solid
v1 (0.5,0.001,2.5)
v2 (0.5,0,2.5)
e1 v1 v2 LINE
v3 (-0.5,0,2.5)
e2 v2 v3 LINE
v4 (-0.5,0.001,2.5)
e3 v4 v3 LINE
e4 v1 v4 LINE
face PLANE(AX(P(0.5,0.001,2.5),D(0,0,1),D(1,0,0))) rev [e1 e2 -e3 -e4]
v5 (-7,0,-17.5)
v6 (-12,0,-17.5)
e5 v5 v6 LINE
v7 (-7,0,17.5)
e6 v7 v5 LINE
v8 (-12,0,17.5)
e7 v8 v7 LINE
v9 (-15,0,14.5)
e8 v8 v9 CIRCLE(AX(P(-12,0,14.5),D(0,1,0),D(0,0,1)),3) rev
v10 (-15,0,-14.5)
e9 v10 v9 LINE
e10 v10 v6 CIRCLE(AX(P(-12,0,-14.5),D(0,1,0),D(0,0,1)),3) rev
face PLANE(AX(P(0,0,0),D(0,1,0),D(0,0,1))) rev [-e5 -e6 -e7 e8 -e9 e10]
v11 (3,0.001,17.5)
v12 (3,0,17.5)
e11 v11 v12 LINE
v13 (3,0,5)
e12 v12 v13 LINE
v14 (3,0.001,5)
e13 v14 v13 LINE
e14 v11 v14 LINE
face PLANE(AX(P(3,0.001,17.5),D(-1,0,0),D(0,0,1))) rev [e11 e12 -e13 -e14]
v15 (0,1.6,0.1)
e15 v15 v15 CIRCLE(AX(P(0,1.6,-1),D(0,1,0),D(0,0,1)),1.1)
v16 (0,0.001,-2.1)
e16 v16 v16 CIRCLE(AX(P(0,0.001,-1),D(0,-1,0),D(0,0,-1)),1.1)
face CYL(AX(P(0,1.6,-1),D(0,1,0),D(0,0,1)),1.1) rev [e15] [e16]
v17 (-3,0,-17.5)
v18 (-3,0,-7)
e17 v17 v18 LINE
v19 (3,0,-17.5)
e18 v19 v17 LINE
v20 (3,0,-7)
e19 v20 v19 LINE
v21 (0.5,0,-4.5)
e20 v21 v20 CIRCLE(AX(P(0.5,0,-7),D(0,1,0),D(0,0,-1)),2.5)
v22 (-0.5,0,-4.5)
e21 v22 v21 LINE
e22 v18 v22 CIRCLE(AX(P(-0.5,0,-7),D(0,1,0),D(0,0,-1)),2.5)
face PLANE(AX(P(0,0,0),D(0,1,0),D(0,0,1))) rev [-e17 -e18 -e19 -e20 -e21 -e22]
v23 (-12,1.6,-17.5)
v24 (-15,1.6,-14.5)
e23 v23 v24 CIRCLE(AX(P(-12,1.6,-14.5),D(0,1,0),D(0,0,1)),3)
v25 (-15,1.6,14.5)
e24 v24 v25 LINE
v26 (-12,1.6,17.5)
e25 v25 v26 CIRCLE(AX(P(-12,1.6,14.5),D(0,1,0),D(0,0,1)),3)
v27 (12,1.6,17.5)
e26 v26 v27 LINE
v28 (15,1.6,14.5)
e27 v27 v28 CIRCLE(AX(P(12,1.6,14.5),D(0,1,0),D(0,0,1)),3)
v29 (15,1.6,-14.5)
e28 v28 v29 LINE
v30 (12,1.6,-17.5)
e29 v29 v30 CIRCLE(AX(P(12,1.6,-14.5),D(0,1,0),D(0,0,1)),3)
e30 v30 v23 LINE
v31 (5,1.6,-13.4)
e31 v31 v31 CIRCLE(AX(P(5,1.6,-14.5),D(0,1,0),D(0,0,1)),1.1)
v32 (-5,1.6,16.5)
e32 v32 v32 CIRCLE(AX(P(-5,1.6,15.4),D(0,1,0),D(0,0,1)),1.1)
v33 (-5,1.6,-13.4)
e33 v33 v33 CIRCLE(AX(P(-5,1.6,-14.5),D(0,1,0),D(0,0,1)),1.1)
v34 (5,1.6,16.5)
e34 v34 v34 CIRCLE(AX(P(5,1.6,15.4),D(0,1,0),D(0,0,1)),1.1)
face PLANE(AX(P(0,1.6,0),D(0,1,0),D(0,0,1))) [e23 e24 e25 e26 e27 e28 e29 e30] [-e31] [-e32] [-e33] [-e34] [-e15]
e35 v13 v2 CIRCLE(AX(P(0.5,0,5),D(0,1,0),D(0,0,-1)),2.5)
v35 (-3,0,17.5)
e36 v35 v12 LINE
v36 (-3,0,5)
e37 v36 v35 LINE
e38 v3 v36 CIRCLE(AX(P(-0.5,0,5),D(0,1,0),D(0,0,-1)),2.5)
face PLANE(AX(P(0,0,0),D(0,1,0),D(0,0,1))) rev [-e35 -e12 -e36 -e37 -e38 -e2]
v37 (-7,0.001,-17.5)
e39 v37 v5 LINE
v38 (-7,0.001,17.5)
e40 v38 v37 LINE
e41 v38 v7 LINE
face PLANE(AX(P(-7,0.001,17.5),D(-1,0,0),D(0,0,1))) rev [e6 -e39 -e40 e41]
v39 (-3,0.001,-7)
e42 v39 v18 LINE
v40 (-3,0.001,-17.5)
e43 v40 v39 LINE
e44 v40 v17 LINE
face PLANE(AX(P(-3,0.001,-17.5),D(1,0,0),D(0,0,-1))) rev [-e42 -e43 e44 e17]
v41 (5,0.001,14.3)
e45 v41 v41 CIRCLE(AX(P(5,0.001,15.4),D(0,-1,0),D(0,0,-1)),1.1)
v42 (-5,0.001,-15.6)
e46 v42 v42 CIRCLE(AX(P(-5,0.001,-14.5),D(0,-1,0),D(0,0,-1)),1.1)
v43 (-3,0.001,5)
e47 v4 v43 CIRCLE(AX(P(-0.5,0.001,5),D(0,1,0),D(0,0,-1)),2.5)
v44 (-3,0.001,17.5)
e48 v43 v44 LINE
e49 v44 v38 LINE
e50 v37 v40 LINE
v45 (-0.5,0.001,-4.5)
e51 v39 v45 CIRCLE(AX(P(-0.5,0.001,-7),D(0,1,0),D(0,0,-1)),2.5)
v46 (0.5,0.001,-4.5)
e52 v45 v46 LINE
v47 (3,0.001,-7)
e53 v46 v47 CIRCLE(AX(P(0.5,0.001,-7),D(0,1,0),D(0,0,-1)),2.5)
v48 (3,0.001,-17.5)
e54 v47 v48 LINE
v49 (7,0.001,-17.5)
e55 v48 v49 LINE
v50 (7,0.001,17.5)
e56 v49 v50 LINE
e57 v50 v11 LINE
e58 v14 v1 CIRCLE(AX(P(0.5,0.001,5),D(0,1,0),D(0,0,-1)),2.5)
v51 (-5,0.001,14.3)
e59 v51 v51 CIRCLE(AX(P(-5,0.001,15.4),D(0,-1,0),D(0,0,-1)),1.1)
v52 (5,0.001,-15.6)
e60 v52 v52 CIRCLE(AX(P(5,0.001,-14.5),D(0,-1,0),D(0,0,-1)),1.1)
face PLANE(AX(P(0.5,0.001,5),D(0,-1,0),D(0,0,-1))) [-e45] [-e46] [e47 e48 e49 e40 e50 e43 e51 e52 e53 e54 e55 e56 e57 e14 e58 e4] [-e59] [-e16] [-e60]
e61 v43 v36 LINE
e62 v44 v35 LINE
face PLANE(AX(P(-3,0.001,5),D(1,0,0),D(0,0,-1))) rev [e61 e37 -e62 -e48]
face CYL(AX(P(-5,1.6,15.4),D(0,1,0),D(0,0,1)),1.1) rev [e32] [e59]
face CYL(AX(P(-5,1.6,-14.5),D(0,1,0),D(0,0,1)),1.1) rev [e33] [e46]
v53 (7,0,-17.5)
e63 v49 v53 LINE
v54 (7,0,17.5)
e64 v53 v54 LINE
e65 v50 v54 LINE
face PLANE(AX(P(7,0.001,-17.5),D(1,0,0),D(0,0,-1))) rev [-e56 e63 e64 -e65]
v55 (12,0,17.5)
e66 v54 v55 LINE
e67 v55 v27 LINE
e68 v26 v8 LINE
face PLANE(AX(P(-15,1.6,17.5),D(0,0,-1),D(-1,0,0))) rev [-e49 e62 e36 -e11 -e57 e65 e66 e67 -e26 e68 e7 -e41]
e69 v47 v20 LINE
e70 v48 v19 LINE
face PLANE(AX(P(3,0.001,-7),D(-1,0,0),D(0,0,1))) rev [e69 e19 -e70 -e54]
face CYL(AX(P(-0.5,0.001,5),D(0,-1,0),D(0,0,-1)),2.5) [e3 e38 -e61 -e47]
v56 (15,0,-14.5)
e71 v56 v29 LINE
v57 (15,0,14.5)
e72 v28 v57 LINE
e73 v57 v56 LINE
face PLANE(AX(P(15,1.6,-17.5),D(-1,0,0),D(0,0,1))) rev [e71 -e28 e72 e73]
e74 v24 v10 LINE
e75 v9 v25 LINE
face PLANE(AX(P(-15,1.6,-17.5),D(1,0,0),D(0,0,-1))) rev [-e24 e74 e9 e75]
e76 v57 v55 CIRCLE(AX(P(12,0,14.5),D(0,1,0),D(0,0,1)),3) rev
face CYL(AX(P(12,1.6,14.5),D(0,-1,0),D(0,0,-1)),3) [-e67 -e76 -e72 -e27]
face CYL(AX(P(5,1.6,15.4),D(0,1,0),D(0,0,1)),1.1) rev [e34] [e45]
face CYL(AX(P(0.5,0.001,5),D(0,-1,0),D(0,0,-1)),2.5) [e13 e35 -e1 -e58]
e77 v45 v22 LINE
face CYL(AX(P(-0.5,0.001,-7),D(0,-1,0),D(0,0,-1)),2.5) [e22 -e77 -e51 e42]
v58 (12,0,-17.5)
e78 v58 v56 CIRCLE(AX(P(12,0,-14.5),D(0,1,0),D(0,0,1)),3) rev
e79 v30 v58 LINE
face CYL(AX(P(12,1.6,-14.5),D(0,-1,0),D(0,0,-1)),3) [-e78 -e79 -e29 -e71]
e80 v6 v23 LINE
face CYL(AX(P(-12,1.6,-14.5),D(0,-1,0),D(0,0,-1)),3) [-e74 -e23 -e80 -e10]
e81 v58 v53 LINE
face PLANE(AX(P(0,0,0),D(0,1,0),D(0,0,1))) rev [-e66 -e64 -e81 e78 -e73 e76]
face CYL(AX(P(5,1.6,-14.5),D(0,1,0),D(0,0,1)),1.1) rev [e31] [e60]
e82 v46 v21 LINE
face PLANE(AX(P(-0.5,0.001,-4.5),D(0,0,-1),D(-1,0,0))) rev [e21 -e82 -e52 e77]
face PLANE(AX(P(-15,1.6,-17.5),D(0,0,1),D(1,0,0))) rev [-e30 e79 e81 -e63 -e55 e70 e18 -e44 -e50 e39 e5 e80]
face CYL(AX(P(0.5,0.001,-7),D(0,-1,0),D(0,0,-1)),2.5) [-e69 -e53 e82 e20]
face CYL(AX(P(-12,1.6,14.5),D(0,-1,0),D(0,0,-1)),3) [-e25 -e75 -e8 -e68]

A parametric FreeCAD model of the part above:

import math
import FreeCAD as App
import Part
import Sketcher

V = App.Vector
Q = App.Units.Quantity


def edges_at(feature, points):
    """Names of the edges that pass closest to the given points."""
    edges = feature.Shape.Edges
    near = lambda p: min(range(len(edges)), key=lambda i: edges[i].distToShape(Part.Vertex(*p))[0])
    return sorted({f"Edge{near(p) + 1}" for p in points})


def add_polygon(sketch, points):
    """Adds a closed chain of lines whose ends are joined by coincident constraints."""
    first, n = sketch.GeometryCount, len(points)
    for a, b in zip(points, points[1:] + points[:1]):
        sketch.addGeometry(Part.LineSegment(App.Vector(*a, 0), App.Vector(*b, 0)), False)
    for i in range(n):
        sketch.addConstraint(Sketcher.Constraint("Coincident", first + i, 2, first + (i + 1) % n, 1))

doc = App.newDocument("Part")
params = doc.addObject("Spreadsheet::Sheet", "Params")
for row, (alias, value) in enumerate([
    ("sketch1_width", "30 mm"),
    ("sketch1_height", "35 mm"),
    ("pad1_length", "1.6 mm"),
    ("sketch2_radius", "2.5 mm"),
    ("sketch2_width", "4 mm"),
    ("sketch2_width2", "1 mm"),
    ("sketch2_height", "35 mm"),
    ("sketch2_height2", "12.5 mm"),
    ("pocket1_length", "0.001 mm"),
    ("sketch3_diameter", "2.2 mm"),
    ("hole_diameter", "2.2 mm"),
    ("hole_depth", "5.2 mm"),
    ("fillet_radius", "3 mm"),
], start=1):
    params.set(f"A{row}", alias)
    params.set(f"B{row}", "=" + value)
    params.setAlias(f"B{row}", alias)

body = doc.addObject("PartDesign::Body", "Body")

# Sketch on XZ plane
sketch1 = body.newObject("Sketcher::SketchObject", "Sketch")
sketch1.AttachmentSupport = (doc.getObject("XZ_Plane"), [""])
sketch1.MapMode = "FlatFace"
add_polygon(sketch1, [(-15, -17.5), (-15, 17.5), (15, 17.5), (15, -17.5)])  # lines 0-3
sketch1.addConstraint(Sketcher.Constraint("Vertical", 0))
sketch1.addConstraint(Sketcher.Constraint("Horizontal", 1))
sketch1.addConstraint(Sketcher.Constraint("Vertical", 2))
sketch1.addConstraint(Sketcher.Constraint("Horizontal", 3))
sketch1.addConstraint(Sketcher.Constraint("Symmetric", 0, 2, 2, 2, -1, 1))
sketch1.addConstraint(Sketcher.Constraint("DistanceX", 1, 1, 1, 2, Q("30 mm")))
sketch1.addConstraint(Sketcher.Constraint("DistanceY", 0, 1, 0, 2, Q("35 mm")))
sketch1.setExpression("Constraints[9]", "Params.sketch1_width")
sketch1.setExpression("Constraints[10]", "Params.sketch1_height")
pad1 = body.newObject("PartDesign::Pad", "Pad")
pad1.Profile = sketch1
pad1.setExpression("Length", "Params.pad1_length")
pad1.Reversed = True

# Sketch on XZ plane
sketch2 = body.newObject("Sketcher::SketchObject", "Sketch001")
sketch2.AttachmentSupport = (doc.getObject("XZ_Plane"), [""])
sketch2.MapMode = "FlatFace"
sketch2.addGeometry(Part.LineSegment(V(7, 17.5, 0), V(3, 17.5, 0)), False)
sketch2.addGeometry(Part.LineSegment(V(3, 17.5, 0), V(3, 5, 0)), False)
sketch2.addGeometry(Part.ArcOfCircle(Part.Circle(V(0.5, 5, 0), V(0, 0, 1), 2.5), math.radians(-90), math.radians(0)), False)
sketch2.addGeometry(Part.LineSegment(V(0.5, 2.5, 0), V(-0.5, 2.5, 0)), False)
sketch2.addGeometry(Part.ArcOfCircle(Part.Circle(V(-0.5, 5, 0), V(0, 0, 1), 2.5), math.radians(180), math.radians(270)), False)
sketch2.addGeometry(Part.LineSegment(V(-3, 5, 0), V(-3, 17.5, 0)), False)
sketch2.addGeometry(Part.LineSegment(V(-3, 17.5, 0), V(-7, 17.5, 0)), False)
sketch2.addGeometry(Part.LineSegment(V(-7, 17.5, 0), V(-7, -17.5, 0)), False)
sketch2.addGeometry(Part.LineSegment(V(-7, -17.5, 0), V(-3, -17.5, 0)), False)
sketch2.addGeometry(Part.LineSegment(V(-3, -17.5, 0), V(-3, -7, 0)), False)
sketch2.addGeometry(Part.ArcOfCircle(Part.Circle(V(-0.5, -7, 0), V(0, 0, 1), 2.5), math.radians(90), math.radians(180)), False)
sketch2.addGeometry(Part.LineSegment(V(-0.5, -4.5, 0), V(0.5, -4.5, 0)), False)
sketch2.addGeometry(Part.ArcOfCircle(Part.Circle(V(0.5, -7, 0), V(0, 0, 1), 2.5), math.radians(0), math.radians(90)), False)
sketch2.addGeometry(Part.LineSegment(V(3, -7, 0), V(3, -17.5, 0)), False)
sketch2.addGeometry(Part.LineSegment(V(3, -17.5, 0), V(7, -17.5, 0)), False)
sketch2.addGeometry(Part.LineSegment(V(7, -17.5, 0), V(7, 17.5, 0)), False)
sketch2.addConstraint(Sketcher.Constraint("Coincident", 0, 2, 1, 1))
sketch2.addConstraint(Sketcher.Constraint("Tangent", 1, 2, 2, 2))
sketch2.addConstraint(Sketcher.Constraint("Tangent", 2, 1, 3, 1))
sketch2.addConstraint(Sketcher.Constraint("Tangent", 3, 2, 4, 2))
sketch2.addConstraint(Sketcher.Constraint("Tangent", 4, 1, 5, 1))
sketch2.addConstraint(Sketcher.Constraint("Coincident", 5, 2, 6, 1))
sketch2.addConstraint(Sketcher.Constraint("Coincident", 6, 2, 7, 1))
sketch2.addConstraint(Sketcher.Constraint("Coincident", 7, 2, 8, 1))
sketch2.addConstraint(Sketcher.Constraint("Coincident", 8, 2, 9, 1))
sketch2.addConstraint(Sketcher.Constraint("Tangent", 9, 2, 10, 2))
sketch2.addConstraint(Sketcher.Constraint("Tangent", 10, 1, 11, 1))
sketch2.addConstraint(Sketcher.Constraint("Tangent", 11, 2, 12, 2))
sketch2.addConstraint(Sketcher.Constraint("Tangent", 12, 1, 13, 1))
sketch2.addConstraint(Sketcher.Constraint("Coincident", 13, 2, 14, 1))
sketch2.addConstraint(Sketcher.Constraint("Coincident", 14, 2, 15, 1))
sketch2.addConstraint(Sketcher.Constraint("Coincident", 15, 2, 0, 1))
sketch2.addConstraint(Sketcher.Constraint("Horizontal", 0))
sketch2.addConstraint(Sketcher.Constraint("Vertical", 1))
sketch2.addConstraint(Sketcher.Constraint("Horizontal", 3))
sketch2.addConstraint(Sketcher.Constraint("Vertical", 5))
sketch2.addConstraint(Sketcher.Constraint("Horizontal", 6))
sketch2.addConstraint(Sketcher.Constraint("Vertical", 7))
sketch2.addConstraint(Sketcher.Constraint("Horizontal", 8))
sketch2.addConstraint(Sketcher.Constraint("Vertical", 9))
sketch2.addConstraint(Sketcher.Constraint("Horizontal", 11))
sketch2.addConstraint(Sketcher.Constraint("Vertical", 13))
sketch2.addConstraint(Sketcher.Constraint("Horizontal", 14))
sketch2.addConstraint(Sketcher.Constraint("Vertical", 15))
sketch2.addConstraint(Sketcher.Constraint("Equal", 2, 4))
sketch2.addConstraint(Sketcher.Constraint("Equal", 4, 10))
sketch2.addConstraint(Sketcher.Constraint("Equal", 10, 12))
sketch2.addConstraint(Sketcher.Constraint("Symmetric", 0, 2, 8, 2, -1, 1))
sketch2.addConstraint(Sketcher.Constraint("Symmetric", 5, 2, 13, 2, -1, 1))
sketch2.addConstraint(Sketcher.Constraint("Symmetric", 0, 2, 5, 2, -2))
sketch2.addConstraint(Sketcher.Constraint("Equal", 0, 6))
sketch2.addConstraint(Sketcher.Constraint("Radius", 2, Q("2.5 mm")))
sketch2.addConstraint(Sketcher.Constraint("DistanceX", 0, 2, 0, 1, Q("4 mm")))
sketch2.addConstraint(Sketcher.Constraint("DistanceX", 3, 2, 3, 1, Q("1 mm")))
sketch2.addConstraint(Sketcher.Constraint("DistanceY", 7, 2, 7, 1, Q("35 mm")))
sketch2.addConstraint(Sketcher.Constraint("DistanceY", 1, 2, 1, 1, Q("12.5 mm")))
sketch2.addConstraint(Sketcher.Constraint("DistanceY", 9, 1, 9, 2, Q("10.5 mm")))
sketch2.setExpression("Constraints[35]", "Params.sketch2_radius")
sketch2.setExpression("Constraints[36]", "Params.sketch2_width")
sketch2.setExpression("Constraints[37]", "Params.sketch2_width2")
sketch2.setExpression("Constraints[38]", "Params.sketch2_height")
sketch2.setExpression("Constraints[39]", "Params.sketch2_height2")
pocket1 = body.newObject("PartDesign::Pocket", "Pocket")
pocket1.Profile = sketch2
pocket1.setExpression("Length", "Params.pocket1_length")

# Sketch on XZ plane
sketch3 = body.newObject("Sketcher::SketchObject", "Sketch002")
sketch3.AttachmentSupport = (doc.getObject("XZ_Plane"), [""])
sketch3.MapMode = "FlatFace"
sketch3.AttachmentOffset = App.Placement(V(0, 0, -1.6), App.Rotation())
sketch3.addGeometry(Part.Circle(V(-5, -14.5, 0), V(0, 0, 1), 1.1), False)
sketch3.addGeometry(Part.Circle(V(-5, 15.4, 0), V(0, 0, 1), 1.1), False)
sketch3.addGeometry(Part.Circle(V(5, 15.4, 0), V(0, 0, 1), 1.1), False)
sketch3.addGeometry(Part.Circle(V(5, -14.5, 0), V(0, 0, 1), 1.1), False)
sketch3.addGeometry(Part.Circle(V(0, -1, 0), V(0, 0, 1), 1.1), False)
sketch3.addConstraint(Sketcher.Constraint("Equal", 0, 1))
sketch3.addConstraint(Sketcher.Constraint("Equal", 1, 2))
sketch3.addConstraint(Sketcher.Constraint("Equal", 2, 3))
sketch3.addConstraint(Sketcher.Constraint("Equal", 3, 4))
sketch3.addConstraint(Sketcher.Constraint("Symmetric", 1, 3, 2, 3, -2))
sketch3.addConstraint(Sketcher.Constraint("Symmetric", 0, 3, 3, 3, -2))
sketch3.addConstraint(Sketcher.Constraint("PointOnObject", 4, 3, -2))
sketch3.addConstraint(Sketcher.Constraint("Vertical", 0, 3, 1, 3))
sketch3.addConstraint(Sketcher.Constraint("Diameter", 0, Q("2.2 mm")))
sketch3.addConstraint(Sketcher.Constraint("DistanceX", 0, 3, -1, 1, Q("5 mm")))
sketch3.addConstraint(Sketcher.Constraint("DistanceY", 4, 3, -1, 1, Q("1 mm")))
sketch3.addConstraint(Sketcher.Constraint("DistanceY", 0, 3, -1, 1, Q("14.5 mm")))
sketch3.addConstraint(Sketcher.Constraint("DistanceY", -1, 1, 1, 3, Q("15.4 mm")))
sketch3.setExpression("Constraints[8]", "Params.sketch3_diameter")
doc.recompute()
hole = body.newObject("PartDesign::Hole", "Hole")
hole.Profile = sketch3
hole.ThreadType = "None"
hole.setExpression("Diameter", "Params.hole_diameter")
hole.DepthType = "Dimension"
hole.setExpression("Depth", "Params.hole_depth")
hole.DrillPoint = "Angled"
hole.DrillPointAngle = 118
hole.Reversed = True
doc.recompute()

fillet = body.newObject("PartDesign::Fillet", "Fillet")
fillet.Base = (hole, edges_at(hole, [
    (-15, 0.8, -17.5),
    (15, 0.8, -17.5),
    (15, 0.8, 17.5),
    (-15, 0.8, 17.5),
]))
fillet.setExpression("Radius", "Params.fillet_radius")

doc.recompute()
